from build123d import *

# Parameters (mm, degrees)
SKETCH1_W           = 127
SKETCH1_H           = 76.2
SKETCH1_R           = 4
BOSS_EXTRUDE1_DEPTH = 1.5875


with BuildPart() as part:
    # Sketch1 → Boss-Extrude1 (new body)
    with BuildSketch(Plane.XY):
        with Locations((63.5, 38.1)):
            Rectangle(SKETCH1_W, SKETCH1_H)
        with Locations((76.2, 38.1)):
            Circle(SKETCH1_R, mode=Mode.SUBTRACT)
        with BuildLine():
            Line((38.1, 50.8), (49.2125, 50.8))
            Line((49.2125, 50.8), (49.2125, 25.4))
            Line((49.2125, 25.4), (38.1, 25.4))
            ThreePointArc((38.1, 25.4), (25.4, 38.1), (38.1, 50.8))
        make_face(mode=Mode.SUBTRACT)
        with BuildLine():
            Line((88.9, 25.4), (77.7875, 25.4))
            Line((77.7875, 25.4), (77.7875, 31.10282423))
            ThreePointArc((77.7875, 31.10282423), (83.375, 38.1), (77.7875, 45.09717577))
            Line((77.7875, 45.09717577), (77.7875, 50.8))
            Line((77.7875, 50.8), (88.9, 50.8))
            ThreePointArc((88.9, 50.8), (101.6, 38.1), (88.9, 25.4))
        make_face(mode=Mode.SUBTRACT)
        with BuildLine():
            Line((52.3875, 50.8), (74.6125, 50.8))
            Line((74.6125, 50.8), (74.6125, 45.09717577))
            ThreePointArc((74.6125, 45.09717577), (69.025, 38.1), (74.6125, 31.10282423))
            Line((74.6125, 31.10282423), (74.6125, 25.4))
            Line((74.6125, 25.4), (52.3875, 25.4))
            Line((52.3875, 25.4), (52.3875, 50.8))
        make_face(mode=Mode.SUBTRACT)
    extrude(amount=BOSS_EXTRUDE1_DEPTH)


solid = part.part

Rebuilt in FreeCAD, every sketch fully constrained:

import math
import FreeCAD as App
import Part
import Sketcher
Q = App.Units.Quantity

doc = App.newDocument("Part")
body = doc.addObject("PartDesign::Body", "Body")

sketch1 = body.newObject("Sketcher::SketchObject", "Sketch")
sketch1.AttachmentSupport = (doc.getObject("XY_Plane"), [""])
sketch1.MapMode = "FlatFace"
sketch1.addGeometry([
    Part.LineSegment(App.Vector(0, 76.2, 0), App.Vector(0, 0, 0)),
    Part.LineSegment(App.Vector(0, 0, 0), App.Vector(127, 0, 0)),
    Part.LineSegment(App.Vector(127, 0, 0), App.Vector(127, 76.2, 0)),
    Part.LineSegment(App.Vector(127, 76.2, 0), App.Vector(0, 76.2, 0)),
    Part.ArcOfCircle(Part.Circle(App.Vector(38.1, 38.1, 0), App.Vector(0, 0, 1), 12.7), math.radians(90), math.radians(270)),
    Part.LineSegment(App.Vector(38.1, 50.8, 0), App.Vector(49.2125, 50.8, 0)),
    Part.LineSegment(App.Vector(49.2125, 50.8, 0), App.Vector(49.2125, 25.4, 0)),
    Part.LineSegment(App.Vector(49.2125, 25.4, 0), App.Vector(38.1, 25.4, 0)),
    Part.LineSegment(App.Vector(52.3875, 25.4, 0), App.Vector(52.3875, 50.8, 0)),
    Part.LineSegment(App.Vector(52.3875, 50.8, 0), App.Vector(74.6125, 50.8, 0)),
    Part.LineSegment(App.Vector(74.6125, 50.8, 0), App.Vector(74.6125, 45.097176, 0)),
    Part.ArcOfCircle(Part.Circle(App.Vector(76.2, 38.1, 0), App.Vector(0, 0, 1), 7.175), math.radians(102.782718), math.radians(257.217282)),
    Part.LineSegment(App.Vector(74.6125, 31.102824, 0), App.Vector(74.6125, 25.4, 0)),
    Part.LineSegment(App.Vector(74.6125, 25.4, 0), App.Vector(52.3875, 25.4, 0)),
    Part.Circle(App.Vector(76.2, 38.1, 0), App.Vector(0, 0, 1), 4),
    Part.ArcOfCircle(Part.Circle(App.Vector(88.9, 38.1, 0), App.Vector(0, 0, 1), 12.7), math.radians(-90), math.radians(90)),
    Part.LineSegment(App.Vector(88.9, 25.4, 0), App.Vector(77.7875, 25.4, 0)),
    Part.LineSegment(App.Vector(77.7875, 25.4, 0), App.Vector(77.7875, 31.102824, 0)),
    Part.ArcOfCircle(Part.Circle(App.Vector(76.2, 38.1, 0), App.Vector(0, 0, 1), 7.175), math.radians(-77.217282), math.radians(77.217282)),
    Part.LineSegment(App.Vector(77.7875, 45.097176, 0), App.Vector(77.7875, 50.8, 0)),
    Part.LineSegment(App.Vector(77.7875, 50.8, 0), App.Vector(88.9, 50.8, 0)),
], False)
sketch1.addConstraint([
    Sketcher.Constraint("Coincident", 0, 2, 1, 1),
    Sketcher.Constraint("Coincident", 1, 2, 2, 1),
    Sketcher.Constraint("Coincident", 2, 2, 3, 1),
    Sketcher.Constraint("Coincident", 3, 2, 0, 1),
    Sketcher.Constraint("Tangent", 4, 1, 5, 1),
    Sketcher.Constraint("Coincident", 5, 2, 6, 1),
    Sketcher.Constraint("Coincident", 6, 2, 7, 1),
    Sketcher.Constraint("Tangent", 7, 2, 4, 2),
    Sketcher.Constraint("Coincident", 8, 2, 9, 1),
    Sketcher.Constraint("Coincident", 9, 2, 10, 1),
    Sketcher.Constraint("Coincident", 10, 2, 11, 1),
    Sketcher.Constraint("Coincident", 11, 2, 12, 1),
    Sketcher.Constraint("Coincident", 12, 2, 13, 1),
    Sketcher.Constraint("Coincident", 13, 2, 8, 1),
    Sketcher.Constraint("Tangent", 15, 1, 16, 1),
    Sketcher.Constraint("Coincident", 16, 2, 17, 1),
    Sketcher.Constraint("Coincident", 17, 2, 18, 1),
    Sketcher.Constraint("Coincident", 18, 2, 19, 1),
    Sketcher.Constraint("Coincident", 19, 2, 20, 1),
    Sketcher.Constraint("Tangent", 20, 2, 15, 2),
    Sketcher.Constraint("Vertical", 0),
    Sketcher.Constraint("Horizontal", 1),
    Sketcher.Constraint("Vertical", 2),
    Sketcher.Constraint("Horizontal", 3),
    Sketcher.Constraint("Horizontal", 5),
    Sketcher.Constraint("Vertical", 6),
    Sketcher.Constraint("Horizontal", 7),
    Sketcher.Constraint("Vertical", 8),
    Sketcher.Constraint("Horizontal", 9),
    Sketcher.Constraint("Vertical", 10),
    Sketcher.Constraint("Vertical", 12),
    Sketcher.Constraint("Horizontal", 13),
    Sketcher.Constraint("Horizontal", 16),
    Sketcher.Constraint("Vertical", 17),
    Sketcher.Constraint("Vertical", 19),
    Sketcher.Constraint("Horizontal", 20),
    Sketcher.Constraint("Coincident", 0, 2, -1, 1),
    Sketcher.Constraint("Coincident", 14, 3, 11, 3),
    Sketcher.Constraint("Coincident", 18, 3, 11, 3),
    Sketcher.Constraint("Equal", 4, 15),
    Sketcher.Constraint("Equal", 11, 18),
    Sketcher.Constraint("Horizontal", 4, 3, 11, 3),
    Sketcher.Constraint("Horizontal", 14, 3, 15, 3),
    Sketcher.Constraint("Horizontal", 5, 2, 8, 2),
    Sketcher.Constraint("Horizontal", 7, 2, 12, 2),
    Sketcher.Constraint("Horizontal", 11, 2, 17, 2),
    Sketcher.Constraint("Horizontal", 10, 2, 18, 2),
    Sketcher.Constraint("Vertical", 10, 2, 11, 2),
    Sketcher.Constraint("Equal", 7, 16),
    Sketcher.Constraint("Radius", 4, Q("0.5 in")),
    Sketcher.Constraint("DistanceX", 1, 1, 1, 2, Q("5 in")),
    Sketcher.Constraint("DistanceY", 0, 2, 0, 1, Q("3 in")),
    Sketcher.Constraint("DistanceX", -1, 1, 11, 3, Q("3 in")),
    Sketcher.Constraint("DistanceY", -1, 1, 4, 1, Q("2 in")),
    Sketcher.Constraint("DistanceX", 4, 3, 15, 3, Q("2 in")),
    Sketcher.Constraint("DistanceX", -1, 1, 4, 3, Q("1.5 in")),
    Sketcher.Constraint("Diameter", 14, Q("8 mm")),
    Sketcher.Constraint("DistanceX", 5, 1, 5, 2, Q("0.4375 in")),
    Sketcher.Constraint("DistanceX", 9, 1, 9, 2, Q("0.875 in")),
    Sketcher.Constraint("Radius", 11, Q("7.175 mm")),
])
pad1 = body.newObject("PartDesign::Pad", "Pad")
pad1.Profile = sketch1
pad1.Length = Q("0.0625 in")

doc.recompute()
